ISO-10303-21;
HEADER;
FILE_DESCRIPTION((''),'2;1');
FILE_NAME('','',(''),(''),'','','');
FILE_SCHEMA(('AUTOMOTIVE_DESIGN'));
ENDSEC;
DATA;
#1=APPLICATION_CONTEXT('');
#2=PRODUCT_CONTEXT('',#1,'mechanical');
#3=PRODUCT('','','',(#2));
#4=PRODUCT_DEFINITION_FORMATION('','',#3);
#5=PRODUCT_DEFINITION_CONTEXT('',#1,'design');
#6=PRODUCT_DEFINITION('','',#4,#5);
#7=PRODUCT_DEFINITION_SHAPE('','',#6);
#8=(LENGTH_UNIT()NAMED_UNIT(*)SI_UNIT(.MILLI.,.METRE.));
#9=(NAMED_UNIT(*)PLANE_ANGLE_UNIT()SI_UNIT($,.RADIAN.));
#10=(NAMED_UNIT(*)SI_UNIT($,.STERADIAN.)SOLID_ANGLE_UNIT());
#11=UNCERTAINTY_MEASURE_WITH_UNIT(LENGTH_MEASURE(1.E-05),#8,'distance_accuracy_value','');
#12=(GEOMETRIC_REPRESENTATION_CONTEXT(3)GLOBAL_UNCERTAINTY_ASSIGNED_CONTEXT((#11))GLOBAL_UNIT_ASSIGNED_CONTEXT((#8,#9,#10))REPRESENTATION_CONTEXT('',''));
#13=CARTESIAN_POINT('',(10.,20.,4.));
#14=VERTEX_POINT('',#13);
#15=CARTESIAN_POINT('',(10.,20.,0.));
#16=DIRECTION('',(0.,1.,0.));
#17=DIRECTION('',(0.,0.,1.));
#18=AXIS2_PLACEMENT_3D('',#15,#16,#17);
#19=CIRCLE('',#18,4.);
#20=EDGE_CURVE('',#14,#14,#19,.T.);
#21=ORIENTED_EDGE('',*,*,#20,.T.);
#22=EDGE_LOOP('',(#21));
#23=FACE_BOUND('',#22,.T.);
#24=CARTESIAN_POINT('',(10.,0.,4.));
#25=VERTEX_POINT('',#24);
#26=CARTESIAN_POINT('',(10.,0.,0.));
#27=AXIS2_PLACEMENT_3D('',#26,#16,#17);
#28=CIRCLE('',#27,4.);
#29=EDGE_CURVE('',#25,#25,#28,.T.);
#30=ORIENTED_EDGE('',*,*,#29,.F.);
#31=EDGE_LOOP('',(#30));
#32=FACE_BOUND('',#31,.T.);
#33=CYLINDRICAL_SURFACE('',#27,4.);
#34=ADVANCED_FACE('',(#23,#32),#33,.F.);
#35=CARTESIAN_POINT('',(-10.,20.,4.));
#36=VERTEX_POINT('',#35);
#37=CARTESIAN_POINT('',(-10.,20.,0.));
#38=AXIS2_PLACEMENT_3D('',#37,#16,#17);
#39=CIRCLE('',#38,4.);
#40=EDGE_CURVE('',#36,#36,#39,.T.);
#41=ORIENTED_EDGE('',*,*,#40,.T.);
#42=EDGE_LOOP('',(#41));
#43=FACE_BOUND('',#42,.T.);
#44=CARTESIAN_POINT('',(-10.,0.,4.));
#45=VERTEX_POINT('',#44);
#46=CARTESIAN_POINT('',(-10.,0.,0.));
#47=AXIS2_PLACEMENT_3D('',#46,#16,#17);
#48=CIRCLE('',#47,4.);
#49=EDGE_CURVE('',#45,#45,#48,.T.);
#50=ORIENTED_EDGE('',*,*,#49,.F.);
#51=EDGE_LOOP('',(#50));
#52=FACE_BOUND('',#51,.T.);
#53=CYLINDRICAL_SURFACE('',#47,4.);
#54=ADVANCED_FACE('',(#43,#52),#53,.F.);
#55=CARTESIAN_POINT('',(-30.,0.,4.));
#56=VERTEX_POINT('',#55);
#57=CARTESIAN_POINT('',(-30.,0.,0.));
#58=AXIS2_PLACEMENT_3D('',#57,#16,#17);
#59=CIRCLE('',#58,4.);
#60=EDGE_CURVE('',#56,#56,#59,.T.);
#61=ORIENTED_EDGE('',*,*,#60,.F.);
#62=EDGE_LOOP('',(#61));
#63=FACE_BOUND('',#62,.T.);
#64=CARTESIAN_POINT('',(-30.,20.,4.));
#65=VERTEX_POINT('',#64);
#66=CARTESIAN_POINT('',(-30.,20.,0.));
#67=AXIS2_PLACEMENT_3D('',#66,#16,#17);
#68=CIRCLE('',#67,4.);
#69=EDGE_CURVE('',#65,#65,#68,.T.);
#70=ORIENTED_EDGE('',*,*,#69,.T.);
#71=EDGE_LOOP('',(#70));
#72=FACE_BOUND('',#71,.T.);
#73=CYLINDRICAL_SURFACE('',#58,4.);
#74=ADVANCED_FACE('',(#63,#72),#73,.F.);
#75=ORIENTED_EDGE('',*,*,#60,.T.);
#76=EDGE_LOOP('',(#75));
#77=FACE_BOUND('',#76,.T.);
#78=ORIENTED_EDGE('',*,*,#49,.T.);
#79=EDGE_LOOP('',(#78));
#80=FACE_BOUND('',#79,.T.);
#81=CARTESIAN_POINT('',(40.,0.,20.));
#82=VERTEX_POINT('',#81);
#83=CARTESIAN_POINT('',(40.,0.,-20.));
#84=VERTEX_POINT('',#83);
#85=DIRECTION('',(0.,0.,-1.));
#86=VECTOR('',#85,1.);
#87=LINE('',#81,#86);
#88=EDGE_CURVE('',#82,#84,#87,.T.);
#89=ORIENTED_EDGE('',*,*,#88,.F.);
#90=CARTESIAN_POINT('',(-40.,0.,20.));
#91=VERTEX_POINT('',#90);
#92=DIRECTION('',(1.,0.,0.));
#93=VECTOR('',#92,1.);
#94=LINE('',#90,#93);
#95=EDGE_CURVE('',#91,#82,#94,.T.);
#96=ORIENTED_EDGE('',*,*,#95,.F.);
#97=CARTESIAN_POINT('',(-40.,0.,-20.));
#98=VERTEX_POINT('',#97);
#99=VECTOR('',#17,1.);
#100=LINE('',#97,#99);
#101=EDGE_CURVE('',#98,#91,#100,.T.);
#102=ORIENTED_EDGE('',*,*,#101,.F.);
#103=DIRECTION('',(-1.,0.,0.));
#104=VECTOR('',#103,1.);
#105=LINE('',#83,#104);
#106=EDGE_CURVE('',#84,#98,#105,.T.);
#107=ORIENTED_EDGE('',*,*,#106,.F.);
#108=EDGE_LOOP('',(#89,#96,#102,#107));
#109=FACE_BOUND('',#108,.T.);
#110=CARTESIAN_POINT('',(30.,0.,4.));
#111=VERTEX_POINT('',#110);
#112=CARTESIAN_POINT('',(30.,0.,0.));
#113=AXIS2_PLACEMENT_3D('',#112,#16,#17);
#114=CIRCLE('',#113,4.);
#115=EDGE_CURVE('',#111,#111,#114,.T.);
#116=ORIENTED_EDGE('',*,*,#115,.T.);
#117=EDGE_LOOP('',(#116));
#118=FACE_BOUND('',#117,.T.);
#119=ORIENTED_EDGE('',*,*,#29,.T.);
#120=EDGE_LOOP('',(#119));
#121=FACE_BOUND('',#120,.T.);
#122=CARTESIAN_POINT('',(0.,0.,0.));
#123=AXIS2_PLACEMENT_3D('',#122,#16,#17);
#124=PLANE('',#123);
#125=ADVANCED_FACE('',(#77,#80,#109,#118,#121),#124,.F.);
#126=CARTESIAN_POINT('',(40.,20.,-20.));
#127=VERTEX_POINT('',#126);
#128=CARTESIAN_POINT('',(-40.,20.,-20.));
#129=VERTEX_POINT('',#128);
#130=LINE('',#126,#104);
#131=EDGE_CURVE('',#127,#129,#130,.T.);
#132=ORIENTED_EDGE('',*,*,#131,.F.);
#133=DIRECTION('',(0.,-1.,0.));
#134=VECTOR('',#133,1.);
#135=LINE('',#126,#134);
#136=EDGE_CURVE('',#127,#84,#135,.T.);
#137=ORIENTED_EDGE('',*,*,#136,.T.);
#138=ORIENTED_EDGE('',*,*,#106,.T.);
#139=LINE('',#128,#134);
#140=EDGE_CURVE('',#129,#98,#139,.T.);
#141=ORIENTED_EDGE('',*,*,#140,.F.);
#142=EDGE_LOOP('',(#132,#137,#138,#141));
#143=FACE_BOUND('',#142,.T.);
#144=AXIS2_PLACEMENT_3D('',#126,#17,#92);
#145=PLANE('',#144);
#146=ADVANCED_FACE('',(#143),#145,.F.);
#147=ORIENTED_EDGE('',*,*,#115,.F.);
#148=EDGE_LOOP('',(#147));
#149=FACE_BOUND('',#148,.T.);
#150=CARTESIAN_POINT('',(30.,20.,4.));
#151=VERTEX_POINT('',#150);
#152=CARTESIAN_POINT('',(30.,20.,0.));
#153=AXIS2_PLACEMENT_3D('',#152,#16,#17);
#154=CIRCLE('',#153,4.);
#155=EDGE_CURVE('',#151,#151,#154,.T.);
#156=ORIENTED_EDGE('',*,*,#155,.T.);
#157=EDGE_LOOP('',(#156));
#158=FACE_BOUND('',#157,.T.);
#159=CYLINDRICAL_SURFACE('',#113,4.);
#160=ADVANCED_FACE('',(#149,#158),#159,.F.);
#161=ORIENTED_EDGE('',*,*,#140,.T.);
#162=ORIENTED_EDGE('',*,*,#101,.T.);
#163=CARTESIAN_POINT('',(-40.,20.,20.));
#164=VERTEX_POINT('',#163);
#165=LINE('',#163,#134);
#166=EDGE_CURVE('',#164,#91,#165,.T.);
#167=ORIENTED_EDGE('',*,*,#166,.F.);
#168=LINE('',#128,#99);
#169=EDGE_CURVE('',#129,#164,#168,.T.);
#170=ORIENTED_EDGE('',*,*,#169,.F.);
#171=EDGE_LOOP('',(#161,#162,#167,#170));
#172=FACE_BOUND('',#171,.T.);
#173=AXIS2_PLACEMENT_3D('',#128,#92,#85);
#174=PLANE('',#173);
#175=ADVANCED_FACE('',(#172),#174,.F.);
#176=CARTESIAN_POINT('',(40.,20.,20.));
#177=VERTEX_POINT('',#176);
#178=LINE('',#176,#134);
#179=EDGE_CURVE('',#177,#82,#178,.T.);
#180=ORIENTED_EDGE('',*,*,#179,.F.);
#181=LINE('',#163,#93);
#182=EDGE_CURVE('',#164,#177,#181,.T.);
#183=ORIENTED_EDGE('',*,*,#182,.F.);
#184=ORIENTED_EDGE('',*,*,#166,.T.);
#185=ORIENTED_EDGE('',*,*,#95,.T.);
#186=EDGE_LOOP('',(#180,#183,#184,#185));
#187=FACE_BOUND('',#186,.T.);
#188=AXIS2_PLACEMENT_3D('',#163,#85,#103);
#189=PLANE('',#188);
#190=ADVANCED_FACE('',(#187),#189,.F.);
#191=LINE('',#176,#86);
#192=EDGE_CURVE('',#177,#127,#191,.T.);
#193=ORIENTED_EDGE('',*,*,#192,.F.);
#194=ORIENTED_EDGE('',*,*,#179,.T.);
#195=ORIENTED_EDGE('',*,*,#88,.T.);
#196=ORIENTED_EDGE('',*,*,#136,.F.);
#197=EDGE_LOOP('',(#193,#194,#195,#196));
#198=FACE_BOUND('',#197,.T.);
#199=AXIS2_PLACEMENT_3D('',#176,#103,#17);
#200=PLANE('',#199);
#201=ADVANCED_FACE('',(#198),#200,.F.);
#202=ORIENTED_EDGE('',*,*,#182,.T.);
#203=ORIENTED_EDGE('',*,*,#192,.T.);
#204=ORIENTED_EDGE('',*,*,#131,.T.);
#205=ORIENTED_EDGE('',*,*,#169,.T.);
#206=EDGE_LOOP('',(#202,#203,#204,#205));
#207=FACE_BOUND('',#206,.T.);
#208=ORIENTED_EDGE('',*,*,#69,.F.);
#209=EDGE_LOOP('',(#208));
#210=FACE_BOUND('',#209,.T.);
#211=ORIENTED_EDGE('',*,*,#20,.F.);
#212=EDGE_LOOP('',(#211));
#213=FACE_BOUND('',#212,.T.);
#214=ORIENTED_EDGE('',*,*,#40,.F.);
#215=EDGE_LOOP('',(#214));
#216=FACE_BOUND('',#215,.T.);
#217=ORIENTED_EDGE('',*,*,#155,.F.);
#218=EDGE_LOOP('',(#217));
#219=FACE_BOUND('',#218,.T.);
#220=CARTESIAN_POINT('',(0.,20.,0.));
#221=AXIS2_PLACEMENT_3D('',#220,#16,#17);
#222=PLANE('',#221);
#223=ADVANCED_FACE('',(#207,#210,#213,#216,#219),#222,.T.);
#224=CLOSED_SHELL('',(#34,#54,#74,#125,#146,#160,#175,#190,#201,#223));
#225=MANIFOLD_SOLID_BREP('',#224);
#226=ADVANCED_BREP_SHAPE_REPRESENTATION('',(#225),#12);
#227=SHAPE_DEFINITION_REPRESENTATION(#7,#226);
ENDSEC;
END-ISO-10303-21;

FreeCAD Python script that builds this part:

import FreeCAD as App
import Part
import Sketcher
from FreeCAD import Vector


def add_polygon(sketch, points):
    """Adds a closed chain of lines whose ends are joined by coincident constraints."""
    first, n = sketch.GeometryCount, len(points)
    for a, b in zip(points, points[1:] + points[:1]):
        sketch.addGeometry(Part.LineSegment(App.Vector(*a, 0), App.Vector(*b, 0)), False)
    for i in range(n):
        sketch.addConstraint(Sketcher.Constraint("Coincident", first + i, 2, first + (i + 1) % n, 1))

doc = App.newDocument("Part")
body = doc.addObject("PartDesign::Body", "Body")

# Sketch on XZ plane
sketch1 = body.newObject("Sketcher::SketchObject", "Sketch")
sketch1.AttachmentSupport = (doc.getObject("XZ_Plane"), [""])
sketch1.MapMode = "FlatFace"
add_polygon(sketch1, [(-40, -20), (-40, 20), (40, 20), (40, -20)])  # lines 0-3
sketch1.addConstraint([
    Sketcher.Constraint("Vertical", 0),
    Sketcher.Constraint("Horizontal", 1),
    Sketcher.Constraint("Vertical", 2),
    Sketcher.Constraint("Horizontal", 3),
    Sketcher.Constraint("Symmetric", 0, 2, 2, 2, -1, 1),
    Sketcher.Constraint("DistanceX", 1, 1, 1, 2, 80.0),
    Sketcher.Constraint("DistanceY", 0, 1, 0, 2, 40.0),
])
pad1 = body.newObject("PartDesign::Pad", "Pad")
pad1.Profile = sketch1
pad1.Length = 20
pad1.Reversed = True

# Sketch on XZ plane
sketch2 = body.newObject("Sketcher::SketchObject", "Sketch001")
sketch2.AttachmentSupport = (doc.getObject("XZ_Plane"), [""])
sketch2.MapMode = "FlatFace"
sketch2.AttachmentOffset = App.Placement(Vector(0, 0, -20), App.Rotation())
sketch2.addGeometry(Part.Circle(Vector(-30, 0, 0), Vector(0, 0, 1), 4), False)
sketch2.addConstraint([
    Sketcher.Constraint("PointOnObject", 0, 3, -1),
    Sketcher.Constraint("Diameter", 0, 8.0),
    Sketcher.Constraint("DistanceX", 0, 3, -1, 1, 30.0),
])
pocket1 = body.newObject("PartDesign::Pocket", "Pocket")
pocket1.Profile = sketch2
pocket1.Type = "ThroughAll"
pocket1.Reversed = True
doc.recompute()

linearpattern = body.newObject("PartDesign::LinearPattern", "LinearPattern")
linearpattern.Originals = [pocket1]
linearpattern.Direction = (doc.getObject("X_Axis"), [""])
linearpattern.Mode = "offset"
linearpattern.Offset = 20
linearpattern.Occurrences = 4
body.Tip = linearpattern

doc.recompute()
